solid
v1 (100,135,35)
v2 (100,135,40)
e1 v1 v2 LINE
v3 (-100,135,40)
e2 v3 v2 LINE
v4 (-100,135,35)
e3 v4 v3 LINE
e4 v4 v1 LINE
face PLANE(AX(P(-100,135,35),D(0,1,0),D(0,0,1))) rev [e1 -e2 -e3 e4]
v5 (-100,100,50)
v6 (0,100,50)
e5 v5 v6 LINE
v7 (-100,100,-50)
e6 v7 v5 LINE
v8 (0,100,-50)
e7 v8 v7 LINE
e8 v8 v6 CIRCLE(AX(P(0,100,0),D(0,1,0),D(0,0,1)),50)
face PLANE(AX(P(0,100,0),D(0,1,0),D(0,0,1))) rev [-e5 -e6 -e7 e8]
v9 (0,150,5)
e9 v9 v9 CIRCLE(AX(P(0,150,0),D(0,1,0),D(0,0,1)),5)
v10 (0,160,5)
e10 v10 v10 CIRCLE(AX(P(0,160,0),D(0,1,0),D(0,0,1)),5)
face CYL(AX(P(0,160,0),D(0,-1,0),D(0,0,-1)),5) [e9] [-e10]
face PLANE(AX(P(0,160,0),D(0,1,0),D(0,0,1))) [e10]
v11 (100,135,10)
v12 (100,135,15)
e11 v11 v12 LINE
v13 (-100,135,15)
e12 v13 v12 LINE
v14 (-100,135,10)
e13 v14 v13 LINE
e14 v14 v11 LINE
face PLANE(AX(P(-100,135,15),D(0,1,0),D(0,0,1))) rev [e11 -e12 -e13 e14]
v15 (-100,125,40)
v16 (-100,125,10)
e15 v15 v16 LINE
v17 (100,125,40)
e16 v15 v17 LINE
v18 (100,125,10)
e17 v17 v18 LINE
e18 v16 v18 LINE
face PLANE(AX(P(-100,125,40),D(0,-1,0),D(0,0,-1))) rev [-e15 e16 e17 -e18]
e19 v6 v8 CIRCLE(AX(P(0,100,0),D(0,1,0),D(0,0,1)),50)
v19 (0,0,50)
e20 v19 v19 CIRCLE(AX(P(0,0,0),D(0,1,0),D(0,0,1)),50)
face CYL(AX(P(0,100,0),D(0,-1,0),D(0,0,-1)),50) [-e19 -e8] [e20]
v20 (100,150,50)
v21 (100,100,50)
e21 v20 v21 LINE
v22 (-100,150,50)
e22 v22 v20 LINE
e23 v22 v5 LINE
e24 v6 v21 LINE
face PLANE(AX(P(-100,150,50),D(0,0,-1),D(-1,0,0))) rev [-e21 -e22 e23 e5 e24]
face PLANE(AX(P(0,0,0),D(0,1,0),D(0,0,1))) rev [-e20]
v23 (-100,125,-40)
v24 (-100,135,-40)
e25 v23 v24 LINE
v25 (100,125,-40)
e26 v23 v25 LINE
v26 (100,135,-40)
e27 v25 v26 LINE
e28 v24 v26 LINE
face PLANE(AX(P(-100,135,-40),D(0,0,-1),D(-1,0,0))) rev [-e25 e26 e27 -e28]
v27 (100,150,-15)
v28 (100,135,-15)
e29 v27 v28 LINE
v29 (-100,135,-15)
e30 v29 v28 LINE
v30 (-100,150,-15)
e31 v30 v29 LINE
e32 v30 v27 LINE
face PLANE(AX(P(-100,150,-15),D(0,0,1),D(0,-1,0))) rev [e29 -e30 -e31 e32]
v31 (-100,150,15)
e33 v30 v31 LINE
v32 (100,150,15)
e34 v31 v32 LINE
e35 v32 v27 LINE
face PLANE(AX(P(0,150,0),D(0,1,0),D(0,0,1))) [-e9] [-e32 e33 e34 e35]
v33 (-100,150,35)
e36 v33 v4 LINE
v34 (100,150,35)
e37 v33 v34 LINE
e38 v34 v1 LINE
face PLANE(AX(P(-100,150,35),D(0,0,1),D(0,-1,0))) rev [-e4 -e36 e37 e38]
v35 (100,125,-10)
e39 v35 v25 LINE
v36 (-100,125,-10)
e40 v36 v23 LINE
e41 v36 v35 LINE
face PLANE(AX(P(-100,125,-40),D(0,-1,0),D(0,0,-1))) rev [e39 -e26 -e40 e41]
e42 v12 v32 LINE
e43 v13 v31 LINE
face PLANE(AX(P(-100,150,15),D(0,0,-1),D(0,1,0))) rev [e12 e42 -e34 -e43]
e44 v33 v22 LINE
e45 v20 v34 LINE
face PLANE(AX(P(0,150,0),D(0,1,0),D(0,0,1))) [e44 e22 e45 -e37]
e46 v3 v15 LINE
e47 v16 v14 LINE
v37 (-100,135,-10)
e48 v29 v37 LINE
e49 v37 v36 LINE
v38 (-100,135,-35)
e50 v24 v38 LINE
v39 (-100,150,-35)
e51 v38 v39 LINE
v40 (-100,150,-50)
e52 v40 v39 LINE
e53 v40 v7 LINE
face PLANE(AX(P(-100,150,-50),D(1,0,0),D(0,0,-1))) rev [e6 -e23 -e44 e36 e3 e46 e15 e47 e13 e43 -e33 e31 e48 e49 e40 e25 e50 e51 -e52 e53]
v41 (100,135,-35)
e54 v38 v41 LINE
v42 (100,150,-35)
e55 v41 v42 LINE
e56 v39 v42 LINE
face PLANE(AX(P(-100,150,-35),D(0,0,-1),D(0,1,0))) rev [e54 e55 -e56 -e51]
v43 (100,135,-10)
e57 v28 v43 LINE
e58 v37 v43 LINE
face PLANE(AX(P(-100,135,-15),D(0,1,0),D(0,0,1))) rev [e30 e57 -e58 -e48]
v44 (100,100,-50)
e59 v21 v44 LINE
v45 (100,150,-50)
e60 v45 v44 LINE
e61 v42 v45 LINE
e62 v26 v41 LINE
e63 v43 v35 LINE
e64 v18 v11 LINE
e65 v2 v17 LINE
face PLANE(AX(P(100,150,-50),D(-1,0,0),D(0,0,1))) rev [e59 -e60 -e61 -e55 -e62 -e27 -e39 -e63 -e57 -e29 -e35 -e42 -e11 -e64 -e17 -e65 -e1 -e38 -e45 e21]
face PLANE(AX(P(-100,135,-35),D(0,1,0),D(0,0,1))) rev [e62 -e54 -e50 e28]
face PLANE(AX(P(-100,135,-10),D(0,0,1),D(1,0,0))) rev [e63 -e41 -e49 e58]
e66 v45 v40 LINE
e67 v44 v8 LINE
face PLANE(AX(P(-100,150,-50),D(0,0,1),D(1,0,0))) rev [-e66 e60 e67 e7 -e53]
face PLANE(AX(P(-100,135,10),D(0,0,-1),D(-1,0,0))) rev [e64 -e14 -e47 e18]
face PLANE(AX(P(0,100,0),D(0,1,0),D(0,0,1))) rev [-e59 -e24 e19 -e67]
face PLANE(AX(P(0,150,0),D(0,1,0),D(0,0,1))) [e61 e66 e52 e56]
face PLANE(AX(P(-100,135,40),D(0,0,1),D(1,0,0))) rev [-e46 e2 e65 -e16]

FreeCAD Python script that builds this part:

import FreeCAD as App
import Part
import Sketcher

V = App.Vector
Q = App.Units.Quantity

doc = App.newDocument("Part")
body = doc.addObject("PartDesign::Body", "Body")

sketch1 = body.newObject("Sketcher::SketchObject", "Sketch")
sketch1.AttachmentSupport = (doc.getObject("XZ_Plane"), [""])
sketch1.MapMode = "FlatFace"
sketch1.addGeometry(Part.Circle(V(0, 0, 0), V(0, 0, 1), 50), False)
sketch1.addConstraint([
    Sketcher.Constraint("Coincident", 0, 3, -1, 1),
    Sketcher.Constraint("Diameter", 0, Q("100 mm")),
])
pad1 = body.newObject("PartDesign::Pad", "Pad")
pad1.Profile = sketch1
pad1.Length = 100
pad1.Reversed = True

sketch2 = body.newObject("Sketcher::SketchObject", "Sketch001")
sketch2.AttachmentSupport = (doc.getObject("XZ_Plane"), [""])
sketch2.MapMode = "FlatFace"
sketch2.AttachmentOffset = App.Placement(V(0, 0, -100), App.Rotation())
sketch2.addGeometry([
    Part.LineSegment(V(-100, -50, 0), V(-100, 50, 0)),
    Part.LineSegment(V(-100, 50, 0), V(100, 50, 0)),
    Part.LineSegment(V(100, 50, 0), V(100, -50, 0)),
    Part.LineSegment(V(100, -50, 0), V(-100, -50, 0)),
], False)
sketch2.addConstraint([
    Sketcher.Constraint("Coincident", 0, 2, 1, 1),
    Sketcher.Constraint("Coincident", 1, 2, 2, 1),
    Sketcher.Constraint("Coincident", 2, 2, 3, 1),
    Sketcher.Constraint("Coincident", 3, 2, 0, 1),
    Sketcher.Constraint("Vertical", 0),
    Sketcher.Constraint("Horizontal", 1),
    Sketcher.Constraint("Vertical", 2),
    Sketcher.Constraint("Horizontal", 3),
    Sketcher.Constraint("Symmetric", 0, 2, 2, 2, -1, 1),
    Sketcher.Constraint("DistanceX", 1, 1, 1, 2, Q("200 mm")),
    Sketcher.Constraint("DistanceY", 0, 1, 0, 2, Q("100 mm")),
])
pad2 = body.newObject("PartDesign::Pad", "Pad001")
pad2.Profile = sketch2
pad2.Length = 50
pad2.Reversed = True

sketch3 = body.newObject("Sketcher::SketchObject", "Sketch002")
sketch3.AttachmentSupport = (doc.getObject("YZ_Plane"), [""])
sketch3.MapMode = "FlatFace"
sketch3.AttachmentOffset = App.Placement(V(0, 0, 100), App.Rotation())
sketch3.addGeometry([
    Part.LineSegment(V(150, 35, 0), V(135, 35, 0)),
    Part.LineSegment(V(135, 35, 0), V(135, 40, 0)),
    Part.LineSegment(V(135, 40, 0), V(125, 40, 0)),
    Part.LineSegment(V(125, 40, 0), V(125, 10, 0)),
    Part.LineSegment(V(125, 10, 0), V(135, 10, 0)),
    Part.LineSegment(V(135, 10, 0), V(135, 15, 0)),
    Part.LineSegment(V(135, 15, 0), V(150, 15, 0)),
    Part.LineSegment(V(150, 15, 0), V(150, 35, 0)),
    Part.LineSegment(V(125, -40, 0), V(135, -40, 0)),
    Part.LineSegment(V(135, -40, 0), V(135, -35, 0)),
    Part.LineSegment(V(135, -35, 0), V(150, -35, 0)),
    Part.LineSegment(V(150, -35, 0), V(150, -15, 0)),
    Part.LineSegment(V(150, -15, 0), V(135, -15, 0)),
    Part.LineSegment(V(135, -15, 0), V(135, -10, 0)),
    Part.LineSegment(V(135, -10, 0), V(125, -10, 0)),
    Part.LineSegment(V(125, -10, 0), V(125, -40, 0)),
], False)
sketch3.addConstraint([
    Sketcher.Constraint("Coincident", 0, 2, 1, 1),
    Sketcher.Constraint("Coincident", 1, 2, 2, 1),
    Sketcher.Constraint("Coincident", 2, 2, 3, 1),
    Sketcher.Constraint("Coincident", 3, 2, 4, 1),
    Sketcher.Constraint("Coincident", 4, 2, 5, 1),
    Sketcher.Constraint("Coincident", 5, 2, 6, 1),
    Sketcher.Constraint("Coincident", 6, 2, 7, 1),
    Sketcher.Constraint("Coincident", 7, 2, 0, 1),
    Sketcher.Constraint("Coincident", 8, 2, 9, 1),
    Sketcher.Constraint("Coincident", 9, 2, 10, 1),
    Sketcher.Constraint("Coincident", 10, 2, 11, 1),
    Sketcher.Constraint("Coincident", 11, 2, 12, 1),
    Sketcher.Constraint("Coincident", 12, 2, 13, 1),
    Sketcher.Constraint("Coincident", 13, 2, 14, 1),
    Sketcher.Constraint("Coincident", 14, 2, 15, 1),
    Sketcher.Constraint("Coincident", 15, 2, 8, 1),
    Sketcher.Constraint("Horizontal", 0),
    Sketcher.Constraint("Vertical", 1),
    Sketcher.Constraint("Horizontal", 2),
    Sketcher.Constraint("Vertical", 3),
    Sketcher.Constraint("Horizontal", 4),
    Sketcher.Constraint("Vertical", 5),
    Sketcher.Constraint("Horizontal", 6),
    Sketcher.Constraint("Vertical", 7),
    Sketcher.Constraint("Horizontal", 8),
    Sketcher.Constraint("Vertical", 9),
    Sketcher.Constraint("Horizontal", 10),
    Sketcher.Constraint("Vertical", 11),
    Sketcher.Constraint("Horizontal", 12),
    Sketcher.Constraint("Vertical", 13),
    Sketcher.Constraint("Horizontal", 14),
    Sketcher.Constraint("Vertical", 15),
    Sketcher.Constraint("Symmetric", 1, 2, 8, 2, -1),
    Sketcher.Constraint("Symmetric", 7, 2, 10, 2, -1),
    Sketcher.Constraint("Symmetric", 5, 2, 12, 2, -1),
    Sketcher.Constraint("Symmetric", 3, 2, 14, 2, -1),
    Sketcher.Constraint("Vertical", 1, 2, 4, 2),
    Sketcher.Constraint("Equal", 1, 5),
    Sketcher.Constraint("DistanceX", 0, 2, 0, 1, Q("15 mm")),
    Sketcher.Constraint("DistanceX", 2, 2, 2, 1, Q("10 mm")),
    Sketcher.Constraint("DistanceY", 1, 1, 1, 2, Q("5 mm")),
    Sketcher.Constraint("DistanceY", 3, 2, 3, 1, Q("30 mm")),
    Sketcher.Constraint("DistanceX", -1, 1, 0, 2, Q("135 mm")),
    Sketcher.Constraint("DistanceY", -1, 1, 0, 2, Q("35 mm")),
])
pocket1 = body.newObject("PartDesign::Pocket", "Pocket")
pocket1.Profile = sketch3
pocket1.Type = "ThroughAll"

sketch4 = body.newObject("Sketcher::SketchObject", "Sketch003")
sketch4.AttachmentSupport = (doc.getObject("XZ_Plane"), [""])
sketch4.MapMode = "FlatFace"
sketch4.AttachmentOffset = App.Placement(V(0, 0, -150), App.Rotation())
sketch4.addGeometry(Part.Circle(V(0, 0, 0), V(0, 0, 1), 5), False)
sketch4.addConstraint([
    Sketcher.Constraint("Coincident", 0, 3, -1, 1),
    Sketcher.Constraint("Diameter", 0, Q("10 mm")),
])
pad3 = body.newObject("PartDesign::Pad", "Pad002")
pad3.Profile = sketch4
pad3.Length = 10
pad3.Reversed = True

doc.recompute()
